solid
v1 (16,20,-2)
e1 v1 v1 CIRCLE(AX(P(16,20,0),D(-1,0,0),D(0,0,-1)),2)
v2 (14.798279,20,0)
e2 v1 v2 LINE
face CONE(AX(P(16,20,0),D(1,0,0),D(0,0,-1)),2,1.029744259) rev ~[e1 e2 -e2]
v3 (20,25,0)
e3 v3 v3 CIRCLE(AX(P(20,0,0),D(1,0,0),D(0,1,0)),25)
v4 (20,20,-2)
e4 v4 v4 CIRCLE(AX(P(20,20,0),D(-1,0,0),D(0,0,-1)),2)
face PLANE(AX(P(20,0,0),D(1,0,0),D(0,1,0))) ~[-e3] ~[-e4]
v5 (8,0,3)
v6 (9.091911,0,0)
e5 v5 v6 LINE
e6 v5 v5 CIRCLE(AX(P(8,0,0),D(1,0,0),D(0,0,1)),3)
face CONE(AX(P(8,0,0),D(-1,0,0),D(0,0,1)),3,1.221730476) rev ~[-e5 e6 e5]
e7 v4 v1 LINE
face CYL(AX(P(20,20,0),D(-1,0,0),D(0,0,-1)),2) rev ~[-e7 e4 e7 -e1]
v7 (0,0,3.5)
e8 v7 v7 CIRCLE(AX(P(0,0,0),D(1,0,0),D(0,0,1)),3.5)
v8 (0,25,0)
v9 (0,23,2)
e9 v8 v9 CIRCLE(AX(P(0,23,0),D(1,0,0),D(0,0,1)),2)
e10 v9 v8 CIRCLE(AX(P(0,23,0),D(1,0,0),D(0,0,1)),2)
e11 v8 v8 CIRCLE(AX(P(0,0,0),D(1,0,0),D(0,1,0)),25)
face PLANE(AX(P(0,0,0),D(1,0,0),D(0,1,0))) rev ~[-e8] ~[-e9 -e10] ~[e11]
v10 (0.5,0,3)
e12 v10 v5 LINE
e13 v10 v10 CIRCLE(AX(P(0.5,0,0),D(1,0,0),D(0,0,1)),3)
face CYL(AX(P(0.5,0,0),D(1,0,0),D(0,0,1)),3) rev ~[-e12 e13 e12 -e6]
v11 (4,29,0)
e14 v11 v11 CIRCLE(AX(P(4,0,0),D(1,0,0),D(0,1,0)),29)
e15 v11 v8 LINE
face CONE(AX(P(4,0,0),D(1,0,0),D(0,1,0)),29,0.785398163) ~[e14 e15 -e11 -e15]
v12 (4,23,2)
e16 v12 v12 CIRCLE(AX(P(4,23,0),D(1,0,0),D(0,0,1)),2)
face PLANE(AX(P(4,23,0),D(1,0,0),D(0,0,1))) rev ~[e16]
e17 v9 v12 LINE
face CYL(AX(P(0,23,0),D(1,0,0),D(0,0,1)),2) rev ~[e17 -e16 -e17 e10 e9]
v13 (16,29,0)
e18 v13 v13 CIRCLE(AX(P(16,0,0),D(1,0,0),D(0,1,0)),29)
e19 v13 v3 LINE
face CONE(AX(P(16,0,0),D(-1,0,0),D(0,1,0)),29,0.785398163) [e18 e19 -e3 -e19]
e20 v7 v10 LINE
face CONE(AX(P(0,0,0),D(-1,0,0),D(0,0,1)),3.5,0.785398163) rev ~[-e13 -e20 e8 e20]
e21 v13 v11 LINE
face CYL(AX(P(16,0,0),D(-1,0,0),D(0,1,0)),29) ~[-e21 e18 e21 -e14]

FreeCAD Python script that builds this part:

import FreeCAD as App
import Part
import Sketcher

V = App.Vector

doc = App.newDocument("Part")
body = doc.addObject("PartDesign::Body", "Body")

# Sketch on XY plane
sketch1 = body.newObject("Sketcher::SketchObject", "Sketch")
sketch1.AttachmentSupport = (doc.getObject("XY_Plane"), [""])
sketch1.MapMode = "FlatFace"
sketch1.addGeometry([
    Part.LineSegment(V(0, 25, 0), V(0, 0, 0)),  # 0
    Part.LineSegment(V(0, 0, 0), V(20, 0, 0)),  # 1
    Part.LineSegment(V(20, 0, 0), V(20, 25, 0)),  # 2
    Part.LineSegment(V(20, 25, 0), V(16, 29, 0)),  # 3
    Part.LineSegment(V(16, 29, 0), V(4, 29, 0)),  # 4
    Part.LineSegment(V(4, 29, 0), V(0, 25, 0)),  # 5
], False)
sketch1.addConstraint([
    Sketcher.Constraint("Coincident", 0, 2, 1, 1),
    Sketcher.Constraint("Coincident", 1, 2, 2, 1),
    Sketcher.Constraint("Coincident", 2, 2, 3, 1),
    Sketcher.Constraint("Coincident", 3, 2, 4, 1),
    Sketcher.Constraint("Coincident", 4, 2, 5, 1),
    Sketcher.Constraint("Coincident", 5, 2, 0, 1),
    Sketcher.Constraint("Vertical", 0),
    Sketcher.Constraint("Horizontal", 1),
    Sketcher.Constraint("Vertical", 2),
    Sketcher.Constraint("Horizontal", 4),
    Sketcher.Constraint("Coincident", 0, 2, -1, 1),
    Sketcher.Constraint("Perpendicular", 3, 5),
    Sketcher.Constraint("Horizontal", 2, 2, 5, 2),
    Sketcher.Constraint("Equal", 3, 5),
    Sketcher.Constraint("DistanceX", 1, 1, 1, 2, 20.0),
    Sketcher.Constraint("DistanceY", -1, 1, 3, 2, 29.0),
    Sketcher.Constraint("DistanceX", -1, 1, 4, 2, 4.0),
])
revolution = body.newObject("PartDesign::Revolution", "Revolution")
revolution.Profile = sketch1
revolution.ReferenceAxis = (sketch1, ["H_Axis"])
revolution.Angle = 360

# Sketch on YZ plane
sketch2 = body.newObject("Sketcher::SketchObject", "Sketch001")
sketch2.AttachmentSupport = (doc.getObject("YZ_Plane"), [""])
sketch2.MapMode = "FlatFace"
sketch2.addGeometry(Part.Circle(V(0, 0, 0), V(0, 0, 1), 3), False)
sketch2.addConstraint([
    Sketcher.Constraint("Coincident", 0, 3, -1, 1),
    Sketcher.Constraint("Diameter", 0, 6.0),
])
doc.recompute()
hole = body.newObject("PartDesign::Hole", "Hole")
hole.Profile = sketch2
hole.ThreadType = "None"
hole.Diameter = 6
hole.DepthType = "Dimension"
hole.Depth = 8
hole.DrillPoint = "Angled"
hole.DrillPointAngle = 140
hole.HoleCutType = "Countersink"
hole.HoleCutDiameter = 7
hole.HoleCutCountersinkAngle = 90
hole.Reversed = True

# Sketch on YZ plane
sketch3 = body.newObject("Sketcher::SketchObject", "Sketch002")
sketch3.AttachmentSupport = (doc.getObject("YZ_Plane"), [""])
sketch3.MapMode = "FlatFace"
sketch3.addGeometry(Part.Circle(V(23, 0, 0), V(0, 0, 1), 2), False)
sketch3.addConstraint([
    Sketcher.Constraint("PointOnObject", 0, 3, -1),
    Sketcher.Constraint("Diameter", 0, 4.0),
    Sketcher.Constraint("DistanceX", -1, 1, 0, 3, 23.0),
])
doc.recompute()
hole2 = body.newObject("PartDesign::Hole", "Hole001")
hole2.Profile = sketch3
hole2.ThreadType = "None"
hole2.Diameter = 4
hole2.DepthType = "Dimension"
hole2.Depth = 4
hole2.DrillPoint = "Flat"
hole2.Reversed = True

# Sketch on YZ plane
sketch4 = body.newObject("Sketcher::SketchObject", "Sketch003")
sketch4.AttachmentSupport = (doc.getObject("YZ_Plane"), [""])
sketch4.MapMode = "FlatFace"
sketch4.AttachmentOffset = App.Placement(V(0, 0, 20), App.Rotation())
sketch4.addGeometry(Part.Circle(V(20, 0, 0), V(0, 0, 1), 2), False)
sketch4.addConstraint([
    Sketcher.Constraint("PointOnObject", 0, 3, -1),
    Sketcher.Constraint("Diameter", 0, 4.0),
    Sketcher.Constraint("DistanceX", -1, 1, 0, 3, 20.0),
])
doc.recompute()
hole3 = body.newObject("PartDesign::Hole", "Hole002")
hole3.Profile = sketch4
hole3.ThreadType = "None"
hole3.Diameter = 4
hole3.DepthType = "Dimension"
hole3.Depth = 4
hole3.DrillPoint = "Angled"
hole3.DrillPointAngle = 118

doc.recompute()
